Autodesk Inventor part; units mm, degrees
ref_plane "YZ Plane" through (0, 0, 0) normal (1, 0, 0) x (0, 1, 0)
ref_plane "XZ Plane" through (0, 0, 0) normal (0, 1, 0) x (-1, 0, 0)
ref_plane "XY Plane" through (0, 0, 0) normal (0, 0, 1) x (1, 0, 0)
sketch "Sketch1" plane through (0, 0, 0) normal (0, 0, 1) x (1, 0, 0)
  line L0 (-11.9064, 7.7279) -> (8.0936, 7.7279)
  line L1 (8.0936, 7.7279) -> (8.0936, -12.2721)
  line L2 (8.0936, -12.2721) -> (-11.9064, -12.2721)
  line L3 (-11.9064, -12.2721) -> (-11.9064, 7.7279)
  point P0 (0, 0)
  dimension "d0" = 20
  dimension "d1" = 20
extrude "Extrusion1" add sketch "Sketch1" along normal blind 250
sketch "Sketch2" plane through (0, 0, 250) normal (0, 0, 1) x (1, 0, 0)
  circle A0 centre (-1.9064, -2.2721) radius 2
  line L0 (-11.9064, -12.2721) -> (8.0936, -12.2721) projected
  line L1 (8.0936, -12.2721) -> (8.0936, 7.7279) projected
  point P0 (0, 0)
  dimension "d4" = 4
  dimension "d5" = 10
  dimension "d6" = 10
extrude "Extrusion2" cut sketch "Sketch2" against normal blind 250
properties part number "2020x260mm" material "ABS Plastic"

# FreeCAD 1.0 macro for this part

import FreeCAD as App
import Part
import Sketcher

V = App.Vector


def add_polygon(sketch, points):
    """Adds a closed chain of lines whose ends are joined by coincident constraints."""
    first, n = sketch.GeometryCount, len(points)
    for a, b in zip(points, points[1:] + points[:1]):
        sketch.addGeometry(Part.LineSegment(App.Vector(*a, 0), App.Vector(*b, 0)), False)
    for i in range(n):
        sketch.addConstraint(Sketcher.Constraint("Coincident", first + i, 2, first + (i + 1) % n, 1))

doc = App.newDocument("Part")
body = doc.addObject("PartDesign::Body", "Body")

# Sketch on XY plane
sketch1 = doc.addObject("Sketcher::SketchObject", "Sketch")
body.addObject(sketch1)
sketch1.AttachmentSupport = (doc.XY_Plane, [""])
sketch1.MapMode = "FlatFace"
add_polygon(sketch1, [(8, 8), (-12, 8), (-12, -12), (8, -12)])  # lines 0-3
sketch1.addConstraint([
    Sketcher.Constraint("Horizontal", 0),
    Sketcher.Constraint("Vertical", 1),
    Sketcher.Constraint("Horizontal", 2),
    Sketcher.Constraint("Vertical", 3),
    Sketcher.Constraint("Equal", 2, 1),
    Sketcher.Constraint("DistanceX", 0, 2, 0, 1, 20.0),
    Sketcher.Constraint("DistanceY", -1, 1, 0, 2, 7.728),
    Sketcher.Constraint("DistanceX", 0, 2, -1, 1, 11.9064),
])
pad1 = doc.addObject("PartDesign::Pad", "Pad")
body.addObject(pad1)
pad1.Profile = sketch1
pad1.Length = 250

# Sketch on XY plane
sketch2 = doc.addObject("Sketcher::SketchObject", "Sketch001")
body.addObject(sketch2)
sketch2.AttachmentSupport = (doc.XY_Plane, [""])
sketch2.MapMode = "FlatFace"
sketch2.AttachmentOffset = App.Placement(V(0, 0, 250), App.Rotation())
sketch2.addGeometry(Part.Circle(V(-1.9, -2.3, 0), V(0, 0, 1), 2), False)
sketch2.addConstraint([
    Sketcher.Constraint("Diameter", 0, 4.0),
    Sketcher.Constraint("DistanceY", 0, 3, -1, 1, 2.272),
    Sketcher.Constraint("DistanceX", 0, 3, -1, 1, 1.9064),
])
pocket1 = doc.addObject("PartDesign::Pocket", "Pocket")
body.addObject(pocket1)
pocket1.Profile = sketch2
pocket1.Length = 250

doc.recompute()
